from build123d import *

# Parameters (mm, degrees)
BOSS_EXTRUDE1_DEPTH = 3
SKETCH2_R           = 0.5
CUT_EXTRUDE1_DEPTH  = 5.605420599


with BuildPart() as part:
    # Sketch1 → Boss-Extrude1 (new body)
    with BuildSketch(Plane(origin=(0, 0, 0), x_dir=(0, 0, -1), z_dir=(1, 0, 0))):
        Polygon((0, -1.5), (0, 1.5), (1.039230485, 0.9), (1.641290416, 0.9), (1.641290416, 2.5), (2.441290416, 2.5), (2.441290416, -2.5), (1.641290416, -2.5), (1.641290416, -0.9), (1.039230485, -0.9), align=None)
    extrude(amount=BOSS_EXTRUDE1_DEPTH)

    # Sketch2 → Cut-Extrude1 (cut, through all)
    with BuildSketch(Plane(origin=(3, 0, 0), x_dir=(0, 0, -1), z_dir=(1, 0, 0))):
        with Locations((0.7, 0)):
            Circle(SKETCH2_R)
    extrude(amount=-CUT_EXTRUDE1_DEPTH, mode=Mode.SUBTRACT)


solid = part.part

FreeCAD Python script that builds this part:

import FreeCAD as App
import Part
import Sketcher
from FreeCAD import Vector
Q = App.Units.Quantity


def add_polygon(sketch, points):
    """Adds a closed chain of lines whose ends are joined by coincident constraints."""
    first, n = sketch.GeometryCount, len(points)
    for a, b in zip(points, points[1:] + points[:1]):
        sketch.addGeometry(Part.LineSegment(App.Vector(*a, 0), App.Vector(*b, 0)), False)
    for i in range(n):
        sketch.addConstraint(Sketcher.Constraint("Coincident", first + i, 2, first + (i + 1) % n, 1))

doc = App.newDocument("Part")
params = doc.addObject("Spreadsheet::Sheet", "Params")
for row, (alias, value) in enumerate([
    ("sketch1_width", "3 mm"),
    ("sketch1_width2", "5 mm"),
    ("sketch1_width3", "1.6 mm"),
    ("sketch1_height", "0.8 mm"),
    ("pad1_length", "3 mm"),
    ("sketch2_diameter", "1 mm"),
], start=1):
    params.set(f"A{row}", alias)
    params.set(f"B{row}", "=" + value)
    params.setAlias(f"B{row}", alias)

body = doc.addObject("PartDesign::Body", "Body")

# Sketch on YZ plane
sketch1 = body.newObject("Sketcher::SketchObject", "Sketch")
sketch1.AttachmentSupport = (doc.getObject("YZ_Plane"), [""])
sketch1.MapMode = "FlatFace"
add_polygon(sketch1, [(1.5, 0), (-1.5, 0), (-0.9, -1.03923), (-0.9, -1.64129), (-2.5, -1.64129), (-2.5, -2.44129), (2.5, -2.44129), (2.5, -1.64129), (0.9, -1.64129), (0.9, -1.03923)])  # lines 0-9
sketch1.addConstraint([
    Sketcher.Constraint("Horizontal", 0),
    Sketcher.Constraint("Vertical", 2),
    Sketcher.Constraint("Horizontal", 3),
    Sketcher.Constraint("Vertical", 4),
    Sketcher.Constraint("Horizontal", 5),
    Sketcher.Constraint("Vertical", 6),
    Sketcher.Constraint("Horizontal", 7),
    Sketcher.Constraint("Vertical", 8),
    Sketcher.Constraint("Symmetric", 0, 2, 9, 2, -1, 1),
    Sketcher.Constraint("Symmetric", 3, 2, 6, 2, -2),
    Sketcher.Constraint("Symmetric", 1, 2, 8, 2, -2),
    Sketcher.Constraint("DistanceX", 0, 2, 0, 1, Q("3 mm")),
    Sketcher.Constraint("DistanceX", 5, 1, 5, 2, Q("5 mm")),
    Sketcher.Constraint("Angle", 1, Q("-60 deg")),
    Sketcher.Constraint("DistanceX", 3, 2, 3, 1, Q("1.6 mm")),
    Sketcher.Constraint("DistanceY", 4, 2, 4, 1, Q("0.8 mm")),
    Sketcher.Constraint("DistanceY", 2, 2, 2, 1, Q("0.60206 mm")),
])
sketch1.setExpression("Constraints[21]", "Params.sketch1_width")
sketch1.setExpression("Constraints[22]", "Params.sketch1_width2")
sketch1.setExpression("Constraints[24]", "Params.sketch1_width3")
sketch1.setExpression("Constraints[25]", "Params.sketch1_height")
pad1 = body.newObject("PartDesign::Pad", "Pad")
pad1.Profile = sketch1
pad1.setExpression("Length", "Params.pad1_length")

# Sketch on YZ plane
sketch2 = body.newObject("Sketcher::SketchObject", "Sketch001")
sketch2.AttachmentSupport = (doc.getObject("YZ_Plane"), [""])
sketch2.MapMode = "FlatFace"
sketch2.AttachmentOffset = App.Placement(Vector(0, 0, 3), App.Rotation())
sketch2.addGeometry(Part.Circle(Vector(0, -0.7, 0), Vector(0, 0, 1), 0.5), False)
sketch2.addConstraint([
    Sketcher.Constraint("PointOnObject", 0, 3, -2),
    Sketcher.Constraint("Diameter", 0, Q("1 mm")),
    Sketcher.Constraint("DistanceY", 0, 3, -1, 1, Q("0.7 mm")),
])
sketch2.setExpression("Constraints[1]", "Params.sketch2_diameter")
pocket1 = body.newObject("PartDesign::Pocket", "Pocket")
pocket1.Profile = sketch2
pocket1.Type = "ThroughAll"

doc.recompute()
